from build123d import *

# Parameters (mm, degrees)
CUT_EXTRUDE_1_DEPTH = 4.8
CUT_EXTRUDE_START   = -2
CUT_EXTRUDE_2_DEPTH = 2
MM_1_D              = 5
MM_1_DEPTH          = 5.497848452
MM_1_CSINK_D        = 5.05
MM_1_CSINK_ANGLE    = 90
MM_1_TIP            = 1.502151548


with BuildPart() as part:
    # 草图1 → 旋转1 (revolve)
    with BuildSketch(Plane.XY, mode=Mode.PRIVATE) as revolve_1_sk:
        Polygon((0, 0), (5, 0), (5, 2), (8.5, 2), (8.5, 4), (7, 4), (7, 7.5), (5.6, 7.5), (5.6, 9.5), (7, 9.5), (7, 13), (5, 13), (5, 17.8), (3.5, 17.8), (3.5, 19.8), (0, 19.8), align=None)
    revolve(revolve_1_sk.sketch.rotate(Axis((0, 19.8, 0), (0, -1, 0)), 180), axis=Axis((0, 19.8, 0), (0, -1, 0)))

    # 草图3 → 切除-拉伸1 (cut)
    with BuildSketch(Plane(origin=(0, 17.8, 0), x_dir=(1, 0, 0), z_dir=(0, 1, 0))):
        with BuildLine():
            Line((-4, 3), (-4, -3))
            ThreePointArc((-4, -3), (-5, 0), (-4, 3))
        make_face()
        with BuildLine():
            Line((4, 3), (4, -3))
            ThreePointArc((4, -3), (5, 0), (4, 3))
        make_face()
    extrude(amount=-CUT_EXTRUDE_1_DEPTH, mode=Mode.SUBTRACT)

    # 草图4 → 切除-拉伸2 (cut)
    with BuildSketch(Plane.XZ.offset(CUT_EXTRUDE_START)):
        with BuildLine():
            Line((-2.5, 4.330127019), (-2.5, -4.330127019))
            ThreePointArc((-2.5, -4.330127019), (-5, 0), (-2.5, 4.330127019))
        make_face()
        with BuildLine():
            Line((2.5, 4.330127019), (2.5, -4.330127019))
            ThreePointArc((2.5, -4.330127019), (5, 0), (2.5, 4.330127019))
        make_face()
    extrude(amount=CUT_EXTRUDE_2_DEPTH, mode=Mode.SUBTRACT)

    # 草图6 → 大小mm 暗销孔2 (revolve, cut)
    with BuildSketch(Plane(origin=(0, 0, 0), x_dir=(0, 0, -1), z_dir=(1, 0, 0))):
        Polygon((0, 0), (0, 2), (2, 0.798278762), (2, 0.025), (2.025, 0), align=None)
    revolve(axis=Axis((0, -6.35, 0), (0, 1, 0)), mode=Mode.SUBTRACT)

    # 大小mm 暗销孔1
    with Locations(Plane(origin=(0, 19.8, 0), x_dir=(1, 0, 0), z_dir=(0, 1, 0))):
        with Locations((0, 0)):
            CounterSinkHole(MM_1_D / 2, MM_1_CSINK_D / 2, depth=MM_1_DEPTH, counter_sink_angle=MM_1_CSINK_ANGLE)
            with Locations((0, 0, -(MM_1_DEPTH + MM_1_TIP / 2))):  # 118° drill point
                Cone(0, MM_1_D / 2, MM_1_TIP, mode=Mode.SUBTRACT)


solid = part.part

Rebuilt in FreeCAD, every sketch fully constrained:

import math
import FreeCAD as App
import Part
import Sketcher

V = App.Vector
Q = App.Units.Quantity

doc = App.newDocument("Part")
body = doc.addObject("PartDesign::Body", "Body")

# Sketch on XY plane
sketch1 = body.newObject("Sketcher::SketchObject", "Sketch")
sketch1.AttachmentSupport = (doc.getObject("XY_Plane"), [""])
sketch1.MapMode = "FlatFace"
sketch1.addGeometry([
    Part.LineSegment(V(0, 0, 0), V(5, 0, 0)),  # 0
    Part.LineSegment(V(5, 0, 0), V(5, 2, 0)),  # 1
    Part.LineSegment(V(5, 2, 0), V(8.5, 2, 0)),  # 2
    Part.LineSegment(V(8.5, 2, 0), V(8.5, 4, 0)),  # 3
    Part.LineSegment(V(8.5, 4, 0), V(7, 4, 0)),  # 4
    Part.LineSegment(V(7, 4, 0), V(7, 7.5, 0)),  # 5
    Part.LineSegment(V(7, 7.5, 0), V(5.6, 7.5, 0)),  # 6
    Part.LineSegment(V(5.6, 7.5, 0), V(5.6, 9.5, 0)),  # 7
    Part.LineSegment(V(5.6, 9.5, 0), V(7, 9.5, 0)),  # 8
    Part.LineSegment(V(7, 9.5, 0), V(7, 13, 0)),  # 9
    Part.LineSegment(V(7, 13, 0), V(5, 13, 0)),  # 10
    Part.LineSegment(V(5, 13, 0), V(5, 17.8, 0)),  # 11
    Part.LineSegment(V(5, 17.8, 0), V(3.5, 17.8, 0)),  # 12
    Part.LineSegment(V(3.5, 17.8, 0), V(3.5, 19.8, 0)),  # 13
    Part.LineSegment(V(3.5, 19.8, 0), V(0, 19.8, 0)),  # 14
    Part.LineSegment(V(0, 19.8, 0), V(0, 0, 0)),  # 15
], False)
sketch1.addConstraint([
    Sketcher.Constraint("Coincident", 0, 2, 1, 1),
    Sketcher.Constraint("Coincident", 1, 2, 2, 1),
    Sketcher.Constraint("Coincident", 2, 2, 3, 1),
    Sketcher.Constraint("Coincident", 3, 2, 4, 1),
    Sketcher.Constraint("Coincident", 4, 2, 5, 1),
    Sketcher.Constraint("Coincident", 5, 2, 6, 1),
    Sketcher.Constraint("Coincident", 6, 2, 7, 1),
    Sketcher.Constraint("Coincident", 7, 2, 8, 1),
    Sketcher.Constraint("Coincident", 8, 2, 9, 1),
    Sketcher.Constraint("Coincident", 9, 2, 10, 1),
    Sketcher.Constraint("Coincident", 10, 2, 11, 1),
    Sketcher.Constraint("Coincident", 11, 2, 12, 1),
    Sketcher.Constraint("Coincident", 12, 2, 13, 1),
    Sketcher.Constraint("Coincident", 13, 2, 14, 1),
    Sketcher.Constraint("Coincident", 14, 2, 15, 1),
    Sketcher.Constraint("Coincident", 15, 2, 0, 1),
    Sketcher.Constraint("Horizontal", 0),
    Sketcher.Constraint("Vertical", 1),
    Sketcher.Constraint("Horizontal", 2),
    Sketcher.Constraint("Vertical", 3),
    Sketcher.Constraint("Horizontal", 4),
    Sketcher.Constraint("Vertical", 5),
    Sketcher.Constraint("Horizontal", 6),
    Sketcher.Constraint("Vertical", 7),
    Sketcher.Constraint("Horizontal", 8),
    Sketcher.Constraint("Vertical", 9),
    Sketcher.Constraint("Horizontal", 10),
    Sketcher.Constraint("Vertical", 11),
    Sketcher.Constraint("Horizontal", 12),
    Sketcher.Constraint("Vertical", 13),
    Sketcher.Constraint("Horizontal", 14),
    Sketcher.Constraint("Vertical", 15),
    Sketcher.Constraint("Coincident", 15, 2, -1, 1),
    Sketcher.Constraint("Vertical", 5, 2, 8, 2),
    Sketcher.Constraint("Vertical", 1, 2, 10, 2),
    Sketcher.Constraint("Equal", 4, 12),
    Sketcher.Constraint("Equal", 2, 14),
    Sketcher.Constraint("Equal", 10, 1),
    Sketcher.Constraint("Equal", 1, 3),
    Sketcher.Constraint("Equal", 14, 5),
    Sketcher.Constraint("Equal", 3, 7),
    Sketcher.Constraint("Equal", 5, 9),
    Sketcher.Constraint("Equal", 7, 13),
    Sketcher.Constraint("DistanceX", 0, 1, 0, 2, Q("5 mm")),
    Sketcher.Constraint("DistanceX", 10, 2, 10, 1, Q("2 mm")),
    Sketcher.Constraint("DistanceX", 6, 2, 6, 1, Q("1.4 mm")),
    Sketcher.Constraint("DistanceY", 11, 1, 11, 2, Q("4.8 mm")),
])
revolution = body.newObject("PartDesign::Revolution", "Revolution")
revolution.Profile = sketch1
revolution.ReferenceAxis = (sketch1, ["V_Axis"])
revolution.Angle = 360

# Sketch on XZ plane
sketch2 = body.newObject("Sketcher::SketchObject", "Sketch001")
sketch2.AttachmentSupport = (doc.getObject("XZ_Plane"), [""])
sketch2.MapMode = "FlatFace"
sketch2.AttachmentOffset = App.Placement(V(0, 0, -17.8), App.Rotation())
sketch2.addGeometry([
    Part.LineSegment(V(-4, 3, 0), V(-4, -3, 0)),
    Part.ArcOfCircle(Part.Circle(V(0, 0, 0), V(0, 0, 1), 5), math.radians(143.130102), math.radians(216.869898)),
    Part.LineSegment(V(4, -3, 0), V(4, 3, 0)),
    Part.ArcOfCircle(Part.Circle(V(0, 0, 0), V(0, 0, 1), 5), math.radians(-36.869898), math.radians(36.869898)),
], False)
sketch2.addConstraint([
    Sketcher.Constraint("Coincident", 0, 1, 1, 1),
    Sketcher.Constraint("Coincident", 1, 2, 0, 2),
    Sketcher.Constraint("Coincident", 2, 1, 3, 1),
    Sketcher.Constraint("Coincident", 3, 2, 2, 2),
    Sketcher.Constraint("Vertical", 0),
    Sketcher.Constraint("Vertical", 2),
    Sketcher.Constraint("Coincident", 1, 3, -1, 1),
    Sketcher.Constraint("Coincident", 3, 3, -1, 1),
    Sketcher.Constraint("Equal", 1, 3),
    Sketcher.Constraint("Horizontal", 1, 2, 2, 1),
    Sketcher.Constraint("Radius", 1, Q("5 mm")),
    Sketcher.Constraint("DistanceY", 0, 2, 0, 1, Q("6 mm")),
])
pocket1 = body.newObject("PartDesign::Pocket", "Pocket")
pocket1.Profile = sketch2
pocket1.Length = 4.8
pocket1.Reversed = True

# Sketch on XZ plane
sketch3 = body.newObject("Sketcher::SketchObject", "Sketch002")
sketch3.AttachmentSupport = (doc.getObject("XZ_Plane"), [""])
sketch3.MapMode = "FlatFace"
sketch3.AttachmentOffset = App.Placement(V(0, 0, -2), App.Rotation())
sketch3.addGeometry([
    Part.LineSegment(V(-2.5, -4.330127, 0), V(-2.5, 4.330127, 0)),
    Part.ArcOfCircle(Part.Circle(V(0, 0, 0), V(0, 0, 1), 5), math.radians(120), math.radians(240)),
    Part.LineSegment(V(2.5, 4.330127, 0), V(2.5, -4.330127, 0)),
    Part.ArcOfCircle(Part.Circle(V(0, 0, 0), V(0, 0, 1), 5), math.radians(-60), math.radians(60)),
], False)
sketch3.addConstraint([
    Sketcher.Constraint("Coincident", 0, 1, 1, 2),
    Sketcher.Constraint("Coincident", 1, 1, 0, 2),
    Sketcher.Constraint("Coincident", 2, 1, 3, 2),
    Sketcher.Constraint("Coincident", 3, 1, 2, 2),
    Sketcher.Constraint("Vertical", 0),
    Sketcher.Constraint("Vertical", 2),
    Sketcher.Constraint("Coincident", 1, 3, -1, 1),
    Sketcher.Constraint("Coincident", 3, 3, -1, 1),
    Sketcher.Constraint("Equal", 1, 3),
    Sketcher.Constraint("Horizontal", 1, 1, 2, 1),
    Sketcher.Constraint("Radius", 1, Q("5 mm")),
    Sketcher.Constraint("DistanceX", 1, 1, 2, 1, Q("5 mm")),
])
pocket2 = body.newObject("PartDesign::Pocket", "Pocket001")
pocket2.Profile = sketch3
pocket2.Length = 2
pocket2.Reversed = True

# Sketch on YZ plane
sketch4 = body.newObject("Sketcher::SketchObject", "Sketch003")
sketch4.AttachmentSupport = (doc.getObject("YZ_Plane"), [""])
sketch4.MapMode = "FlatFace"
sketch4.addGeometry([
    Part.LineSegment(V(2, 0, 0), V(0, 0, 0)),  # 0
    Part.LineSegment(V(0, 0, 0), V(0, -2.025, 0)),  # 1
    Part.LineSegment(V(0, -2.025, 0), V(0.025, -2, 0)),  # 2
    Part.LineSegment(V(0.025, -2, 0), V(0.798279, -2, 0)),  # 3
    Part.LineSegment(V(0.798279, -2, 0), V(2, 0, 0)),  # 4
], False)
sketch4.addConstraint([
    Sketcher.Constraint("Coincident", 0, 2, 1, 1),
    Sketcher.Constraint("Coincident", 1, 2, 2, 1),
    Sketcher.Constraint("Coincident", 2, 2, 3, 1),
    Sketcher.Constraint("Coincident", 3, 2, 4, 1),
    Sketcher.Constraint("Coincident", 4, 2, 0, 1),
    Sketcher.Constraint("Horizontal", 0),
    Sketcher.Constraint("Vertical", 1),
    Sketcher.Constraint("Horizontal", 3),
    Sketcher.Constraint("Coincident", 0, 2, -1, 1),
    Sketcher.Constraint("DistanceX", 0, 2, 0, 1, Q("2 mm")),
    Sketcher.Constraint("Angle", 2, Q("45 deg")),
    Sketcher.Constraint("Angle", 4, Q("59 deg")),
    Sketcher.Constraint("DistanceY", 2, 2, -1, 1, Q("2 mm")),
    Sketcher.Constraint("DistanceY", 1, 2, 1, 1, Q("2.025 mm")),
])
groove = body.newObject("PartDesign::Groove", "Groove")
groove.Profile = sketch4
groove.ReferenceAxis = (sketch4, ["H_Axis"])
groove.Angle = 360

# Sketch on XZ plane
sketch5 = body.newObject("Sketcher::SketchObject", "Sketch004")
sketch5.AttachmentSupport = (doc.getObject("XZ_Plane"), [""])
sketch5.MapMode = "FlatFace"
sketch5.AttachmentOffset = App.Placement(V(0, 0, -19.8), App.Rotation())
sketch5.addGeometry(Part.Circle(V(0, 0, 0), V(0, 0, 1), 2.5), False)
sketch5.addConstraint([
    Sketcher.Constraint("Coincident", 0, 3, -1, 1),
    Sketcher.Constraint("Diameter", 0, Q("5 mm")),
])
doc.recompute()
hole = body.newObject("PartDesign::Hole", "Hole")
hole.Profile = sketch5
hole.ThreadType = "None"
hole.Diameter = 5
hole.DepthType = "Dimension"
hole.Depth = 5.497848
hole.DrillPoint = "Angled"
hole.DrillPointAngle = 118
hole.HoleCutType = "Countersink"
hole.HoleCutDiameter = 5.05
hole.HoleCutCountersinkAngle = 90
hole.Reversed = True

doc.recompute()
